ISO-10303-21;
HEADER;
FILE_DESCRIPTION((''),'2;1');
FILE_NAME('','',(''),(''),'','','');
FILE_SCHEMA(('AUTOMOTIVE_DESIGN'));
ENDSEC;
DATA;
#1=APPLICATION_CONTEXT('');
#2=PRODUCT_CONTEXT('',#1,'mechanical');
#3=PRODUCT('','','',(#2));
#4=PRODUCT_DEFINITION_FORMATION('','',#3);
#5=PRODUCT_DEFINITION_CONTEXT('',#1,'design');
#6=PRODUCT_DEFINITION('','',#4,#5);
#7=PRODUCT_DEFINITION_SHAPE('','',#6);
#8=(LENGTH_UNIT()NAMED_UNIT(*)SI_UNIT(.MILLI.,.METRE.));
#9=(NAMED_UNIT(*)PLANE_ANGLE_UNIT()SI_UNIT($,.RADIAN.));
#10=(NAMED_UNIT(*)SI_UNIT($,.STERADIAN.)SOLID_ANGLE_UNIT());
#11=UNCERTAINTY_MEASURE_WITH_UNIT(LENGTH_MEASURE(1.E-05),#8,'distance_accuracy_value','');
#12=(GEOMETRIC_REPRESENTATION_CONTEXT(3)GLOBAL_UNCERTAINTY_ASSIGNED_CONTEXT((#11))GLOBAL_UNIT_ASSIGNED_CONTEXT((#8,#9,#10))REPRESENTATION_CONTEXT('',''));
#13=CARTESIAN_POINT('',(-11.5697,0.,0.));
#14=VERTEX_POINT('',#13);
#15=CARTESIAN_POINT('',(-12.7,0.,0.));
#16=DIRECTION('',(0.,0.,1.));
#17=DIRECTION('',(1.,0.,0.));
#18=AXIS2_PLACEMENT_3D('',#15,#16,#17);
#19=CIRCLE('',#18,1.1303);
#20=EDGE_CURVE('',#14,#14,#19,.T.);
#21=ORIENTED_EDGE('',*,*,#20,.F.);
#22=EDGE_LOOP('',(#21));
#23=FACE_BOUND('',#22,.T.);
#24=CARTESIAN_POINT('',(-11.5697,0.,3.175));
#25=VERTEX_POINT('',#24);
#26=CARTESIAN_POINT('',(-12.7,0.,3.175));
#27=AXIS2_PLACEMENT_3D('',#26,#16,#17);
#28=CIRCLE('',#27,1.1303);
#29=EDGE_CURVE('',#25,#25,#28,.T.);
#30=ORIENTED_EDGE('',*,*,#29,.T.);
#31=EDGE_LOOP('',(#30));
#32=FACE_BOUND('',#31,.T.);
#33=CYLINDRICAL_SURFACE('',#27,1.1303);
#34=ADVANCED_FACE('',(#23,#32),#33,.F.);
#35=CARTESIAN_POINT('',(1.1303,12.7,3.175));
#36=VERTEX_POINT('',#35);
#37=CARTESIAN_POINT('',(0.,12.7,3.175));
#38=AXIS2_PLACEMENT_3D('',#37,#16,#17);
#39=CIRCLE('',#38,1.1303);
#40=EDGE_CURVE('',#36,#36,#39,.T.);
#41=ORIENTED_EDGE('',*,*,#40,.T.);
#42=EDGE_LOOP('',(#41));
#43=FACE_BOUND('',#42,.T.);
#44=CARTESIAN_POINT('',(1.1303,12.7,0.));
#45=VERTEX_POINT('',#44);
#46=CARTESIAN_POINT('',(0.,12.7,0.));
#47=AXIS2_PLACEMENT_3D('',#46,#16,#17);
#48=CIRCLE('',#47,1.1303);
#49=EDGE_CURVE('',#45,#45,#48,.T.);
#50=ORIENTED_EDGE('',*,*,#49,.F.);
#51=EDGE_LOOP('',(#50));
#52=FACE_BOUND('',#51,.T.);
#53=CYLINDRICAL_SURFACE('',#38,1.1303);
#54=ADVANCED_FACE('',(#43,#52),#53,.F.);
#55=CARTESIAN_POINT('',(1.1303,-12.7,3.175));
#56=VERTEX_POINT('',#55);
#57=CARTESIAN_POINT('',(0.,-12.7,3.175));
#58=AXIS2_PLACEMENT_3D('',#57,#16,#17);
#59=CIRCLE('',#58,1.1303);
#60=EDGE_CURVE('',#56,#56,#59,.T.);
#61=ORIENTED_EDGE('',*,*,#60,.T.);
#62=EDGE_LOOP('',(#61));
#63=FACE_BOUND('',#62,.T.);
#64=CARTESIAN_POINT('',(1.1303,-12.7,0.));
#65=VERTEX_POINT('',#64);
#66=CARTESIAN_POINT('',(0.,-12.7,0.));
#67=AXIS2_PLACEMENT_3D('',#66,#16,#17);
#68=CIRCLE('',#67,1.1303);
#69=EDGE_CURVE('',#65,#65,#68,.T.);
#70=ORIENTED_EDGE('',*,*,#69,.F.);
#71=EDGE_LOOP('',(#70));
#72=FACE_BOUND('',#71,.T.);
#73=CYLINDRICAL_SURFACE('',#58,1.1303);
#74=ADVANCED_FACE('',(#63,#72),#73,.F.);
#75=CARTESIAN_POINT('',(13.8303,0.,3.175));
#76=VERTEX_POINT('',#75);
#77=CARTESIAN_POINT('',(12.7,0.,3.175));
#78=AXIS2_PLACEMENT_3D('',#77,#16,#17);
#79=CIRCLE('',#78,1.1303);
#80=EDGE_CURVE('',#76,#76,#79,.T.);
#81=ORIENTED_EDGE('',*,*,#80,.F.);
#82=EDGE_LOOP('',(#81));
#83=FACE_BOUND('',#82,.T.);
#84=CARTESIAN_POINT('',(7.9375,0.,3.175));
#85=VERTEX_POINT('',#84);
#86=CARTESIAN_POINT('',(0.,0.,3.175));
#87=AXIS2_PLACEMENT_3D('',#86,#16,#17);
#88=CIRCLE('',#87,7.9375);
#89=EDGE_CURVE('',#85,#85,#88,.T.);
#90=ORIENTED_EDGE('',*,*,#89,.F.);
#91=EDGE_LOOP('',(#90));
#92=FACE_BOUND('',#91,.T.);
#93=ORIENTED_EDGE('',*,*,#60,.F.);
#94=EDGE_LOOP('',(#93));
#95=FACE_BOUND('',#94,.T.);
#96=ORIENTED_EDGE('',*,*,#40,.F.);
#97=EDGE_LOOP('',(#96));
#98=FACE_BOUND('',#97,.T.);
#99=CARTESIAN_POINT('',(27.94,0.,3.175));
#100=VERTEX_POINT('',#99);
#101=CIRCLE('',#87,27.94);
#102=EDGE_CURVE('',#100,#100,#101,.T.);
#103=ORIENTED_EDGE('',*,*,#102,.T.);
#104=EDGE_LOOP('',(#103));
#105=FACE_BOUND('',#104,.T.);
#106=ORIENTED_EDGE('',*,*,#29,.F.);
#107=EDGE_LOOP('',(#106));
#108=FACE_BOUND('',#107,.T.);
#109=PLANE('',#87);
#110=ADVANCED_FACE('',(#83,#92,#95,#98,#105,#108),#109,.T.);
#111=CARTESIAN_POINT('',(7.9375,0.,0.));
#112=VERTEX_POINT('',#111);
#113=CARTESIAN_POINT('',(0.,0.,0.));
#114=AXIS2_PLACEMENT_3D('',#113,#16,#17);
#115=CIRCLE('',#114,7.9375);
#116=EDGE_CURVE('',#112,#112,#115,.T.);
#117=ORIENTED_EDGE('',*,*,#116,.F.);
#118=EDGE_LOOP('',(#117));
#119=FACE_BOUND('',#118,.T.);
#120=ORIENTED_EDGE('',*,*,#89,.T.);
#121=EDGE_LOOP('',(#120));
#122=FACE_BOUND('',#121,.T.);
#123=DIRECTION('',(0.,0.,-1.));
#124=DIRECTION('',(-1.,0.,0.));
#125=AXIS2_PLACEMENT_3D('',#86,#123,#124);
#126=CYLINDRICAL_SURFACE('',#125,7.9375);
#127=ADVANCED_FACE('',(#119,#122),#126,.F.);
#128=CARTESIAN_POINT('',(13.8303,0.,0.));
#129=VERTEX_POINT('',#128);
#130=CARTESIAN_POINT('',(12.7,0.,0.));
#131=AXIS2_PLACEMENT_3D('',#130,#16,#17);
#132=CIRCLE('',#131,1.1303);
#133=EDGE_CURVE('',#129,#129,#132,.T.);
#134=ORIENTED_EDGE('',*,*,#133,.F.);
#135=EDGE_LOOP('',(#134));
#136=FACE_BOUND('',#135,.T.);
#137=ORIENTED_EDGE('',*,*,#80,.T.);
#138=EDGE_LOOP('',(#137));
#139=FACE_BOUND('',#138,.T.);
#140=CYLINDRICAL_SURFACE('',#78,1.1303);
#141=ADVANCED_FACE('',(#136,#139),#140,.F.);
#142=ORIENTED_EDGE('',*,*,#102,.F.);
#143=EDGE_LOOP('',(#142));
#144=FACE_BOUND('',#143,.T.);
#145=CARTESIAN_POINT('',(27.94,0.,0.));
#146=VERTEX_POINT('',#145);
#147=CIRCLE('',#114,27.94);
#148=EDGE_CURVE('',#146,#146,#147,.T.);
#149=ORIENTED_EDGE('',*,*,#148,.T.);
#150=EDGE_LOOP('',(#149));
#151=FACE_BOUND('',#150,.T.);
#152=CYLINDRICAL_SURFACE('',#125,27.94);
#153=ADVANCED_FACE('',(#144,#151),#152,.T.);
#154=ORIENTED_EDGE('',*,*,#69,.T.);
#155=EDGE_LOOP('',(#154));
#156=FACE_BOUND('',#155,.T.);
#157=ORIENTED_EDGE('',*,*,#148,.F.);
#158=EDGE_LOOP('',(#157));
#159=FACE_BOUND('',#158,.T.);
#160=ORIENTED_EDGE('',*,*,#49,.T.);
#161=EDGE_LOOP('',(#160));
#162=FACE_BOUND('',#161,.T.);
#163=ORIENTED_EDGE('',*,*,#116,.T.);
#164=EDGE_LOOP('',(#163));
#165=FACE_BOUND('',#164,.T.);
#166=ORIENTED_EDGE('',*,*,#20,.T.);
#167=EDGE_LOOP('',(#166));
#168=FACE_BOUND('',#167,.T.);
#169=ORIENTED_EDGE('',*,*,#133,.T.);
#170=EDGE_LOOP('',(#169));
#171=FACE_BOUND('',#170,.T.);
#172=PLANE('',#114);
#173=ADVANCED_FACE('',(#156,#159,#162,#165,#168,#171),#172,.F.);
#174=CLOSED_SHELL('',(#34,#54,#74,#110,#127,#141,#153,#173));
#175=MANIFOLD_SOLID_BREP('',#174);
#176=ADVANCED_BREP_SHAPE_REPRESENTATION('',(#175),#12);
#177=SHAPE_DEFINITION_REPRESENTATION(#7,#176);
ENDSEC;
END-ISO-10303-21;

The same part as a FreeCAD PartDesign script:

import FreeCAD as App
import Part
import Sketcher

V = App.Vector
Q = App.Units.Quantity

doc = App.newDocument("Part")
body = doc.addObject("PartDesign::Body", "Body")

# Sketch on XY plane
sketch1 = body.newObject("Sketcher::SketchObject", "Sketch")
sketch1.AttachmentSupport = (doc.getObject("XY_Plane"), [""])
sketch1.MapMode = "FlatFace"
sketch1.addGeometry([
    Part.Circle(V(0, 0, 0), V(0, 0, 1), 28),
    Part.Circle(V(0, 0, 0), V(0, 0, 1), 8),
], False)
sketch1.addConstraint([
    Sketcher.Constraint("Coincident", 0, 3, -1, 1),
    Sketcher.Constraint("Coincident", 1, 3, -1, 1),
    Sketcher.Constraint("Diameter", 0, Q("2.2 in")),
    Sketcher.Constraint("Diameter", 1, Q("0.625 in")),
])
pad1 = body.newObject("PartDesign::Pad", "Pad")
pad1.Profile = sketch1
pad1.Length = Q("0.125 in")

# Sketch on XY plane
sketch2 = body.newObject("Sketcher::SketchObject", "Sketch001")
sketch2.AttachmentSupport = (doc.getObject("XY_Plane"), [""])
sketch2.MapMode = "FlatFace"
sketch2.AttachmentOffset = App.Placement(V(0, 0, 0.125 * 25.4), App.Rotation())
sketch2.addGeometry([
    Part.Circle(V(0, 12.7, 0), V(0, 0, 1), 1.1),
    Part.Circle(V(0, -12.7, 0), V(0, 0, 1), 1.1),
    Part.Circle(V(12.7, 0, 0), V(0, 0, 1), 1.1),
    Part.Circle(V(-12.7, 0, 0), V(0, 0, 1), 1.1),
], False)
sketch2.addConstraint([
    Sketcher.Constraint("Equal", 0, 1),
    Sketcher.Constraint("Equal", 1, 2),
    Sketcher.Constraint("Equal", 2, 3),
    Sketcher.Constraint("Symmetric", 0, 3, 1, 3, -1, 1),
    Sketcher.Constraint("Symmetric", 2, 3, 3, 3, -1, 1),
    Sketcher.Constraint("PointOnObject", 0, 3, -2),
    Sketcher.Constraint("PointOnObject", 2, 3, -1),
    Sketcher.Constraint("Diameter", 0, Q("0.089 in")),
    Sketcher.Constraint("DistanceY", 1, 3, 0, 3, Q("1 in")),
    Sketcher.Constraint("DistanceX", 3, 3, 2, 3, Q("1 in")),
])
doc.recompute()
hole = body.newObject("PartDesign::Hole", "Hole")
hole.Profile = sketch2
hole.ThreadType = "None"
hole.Diameter = Q("0.089 in")
hole.DepthType = "Dimension"
hole.Depth = 4
hole.DrillPoint = "Angled"
hole.DrillPointAngle = 118

doc.recompute()
